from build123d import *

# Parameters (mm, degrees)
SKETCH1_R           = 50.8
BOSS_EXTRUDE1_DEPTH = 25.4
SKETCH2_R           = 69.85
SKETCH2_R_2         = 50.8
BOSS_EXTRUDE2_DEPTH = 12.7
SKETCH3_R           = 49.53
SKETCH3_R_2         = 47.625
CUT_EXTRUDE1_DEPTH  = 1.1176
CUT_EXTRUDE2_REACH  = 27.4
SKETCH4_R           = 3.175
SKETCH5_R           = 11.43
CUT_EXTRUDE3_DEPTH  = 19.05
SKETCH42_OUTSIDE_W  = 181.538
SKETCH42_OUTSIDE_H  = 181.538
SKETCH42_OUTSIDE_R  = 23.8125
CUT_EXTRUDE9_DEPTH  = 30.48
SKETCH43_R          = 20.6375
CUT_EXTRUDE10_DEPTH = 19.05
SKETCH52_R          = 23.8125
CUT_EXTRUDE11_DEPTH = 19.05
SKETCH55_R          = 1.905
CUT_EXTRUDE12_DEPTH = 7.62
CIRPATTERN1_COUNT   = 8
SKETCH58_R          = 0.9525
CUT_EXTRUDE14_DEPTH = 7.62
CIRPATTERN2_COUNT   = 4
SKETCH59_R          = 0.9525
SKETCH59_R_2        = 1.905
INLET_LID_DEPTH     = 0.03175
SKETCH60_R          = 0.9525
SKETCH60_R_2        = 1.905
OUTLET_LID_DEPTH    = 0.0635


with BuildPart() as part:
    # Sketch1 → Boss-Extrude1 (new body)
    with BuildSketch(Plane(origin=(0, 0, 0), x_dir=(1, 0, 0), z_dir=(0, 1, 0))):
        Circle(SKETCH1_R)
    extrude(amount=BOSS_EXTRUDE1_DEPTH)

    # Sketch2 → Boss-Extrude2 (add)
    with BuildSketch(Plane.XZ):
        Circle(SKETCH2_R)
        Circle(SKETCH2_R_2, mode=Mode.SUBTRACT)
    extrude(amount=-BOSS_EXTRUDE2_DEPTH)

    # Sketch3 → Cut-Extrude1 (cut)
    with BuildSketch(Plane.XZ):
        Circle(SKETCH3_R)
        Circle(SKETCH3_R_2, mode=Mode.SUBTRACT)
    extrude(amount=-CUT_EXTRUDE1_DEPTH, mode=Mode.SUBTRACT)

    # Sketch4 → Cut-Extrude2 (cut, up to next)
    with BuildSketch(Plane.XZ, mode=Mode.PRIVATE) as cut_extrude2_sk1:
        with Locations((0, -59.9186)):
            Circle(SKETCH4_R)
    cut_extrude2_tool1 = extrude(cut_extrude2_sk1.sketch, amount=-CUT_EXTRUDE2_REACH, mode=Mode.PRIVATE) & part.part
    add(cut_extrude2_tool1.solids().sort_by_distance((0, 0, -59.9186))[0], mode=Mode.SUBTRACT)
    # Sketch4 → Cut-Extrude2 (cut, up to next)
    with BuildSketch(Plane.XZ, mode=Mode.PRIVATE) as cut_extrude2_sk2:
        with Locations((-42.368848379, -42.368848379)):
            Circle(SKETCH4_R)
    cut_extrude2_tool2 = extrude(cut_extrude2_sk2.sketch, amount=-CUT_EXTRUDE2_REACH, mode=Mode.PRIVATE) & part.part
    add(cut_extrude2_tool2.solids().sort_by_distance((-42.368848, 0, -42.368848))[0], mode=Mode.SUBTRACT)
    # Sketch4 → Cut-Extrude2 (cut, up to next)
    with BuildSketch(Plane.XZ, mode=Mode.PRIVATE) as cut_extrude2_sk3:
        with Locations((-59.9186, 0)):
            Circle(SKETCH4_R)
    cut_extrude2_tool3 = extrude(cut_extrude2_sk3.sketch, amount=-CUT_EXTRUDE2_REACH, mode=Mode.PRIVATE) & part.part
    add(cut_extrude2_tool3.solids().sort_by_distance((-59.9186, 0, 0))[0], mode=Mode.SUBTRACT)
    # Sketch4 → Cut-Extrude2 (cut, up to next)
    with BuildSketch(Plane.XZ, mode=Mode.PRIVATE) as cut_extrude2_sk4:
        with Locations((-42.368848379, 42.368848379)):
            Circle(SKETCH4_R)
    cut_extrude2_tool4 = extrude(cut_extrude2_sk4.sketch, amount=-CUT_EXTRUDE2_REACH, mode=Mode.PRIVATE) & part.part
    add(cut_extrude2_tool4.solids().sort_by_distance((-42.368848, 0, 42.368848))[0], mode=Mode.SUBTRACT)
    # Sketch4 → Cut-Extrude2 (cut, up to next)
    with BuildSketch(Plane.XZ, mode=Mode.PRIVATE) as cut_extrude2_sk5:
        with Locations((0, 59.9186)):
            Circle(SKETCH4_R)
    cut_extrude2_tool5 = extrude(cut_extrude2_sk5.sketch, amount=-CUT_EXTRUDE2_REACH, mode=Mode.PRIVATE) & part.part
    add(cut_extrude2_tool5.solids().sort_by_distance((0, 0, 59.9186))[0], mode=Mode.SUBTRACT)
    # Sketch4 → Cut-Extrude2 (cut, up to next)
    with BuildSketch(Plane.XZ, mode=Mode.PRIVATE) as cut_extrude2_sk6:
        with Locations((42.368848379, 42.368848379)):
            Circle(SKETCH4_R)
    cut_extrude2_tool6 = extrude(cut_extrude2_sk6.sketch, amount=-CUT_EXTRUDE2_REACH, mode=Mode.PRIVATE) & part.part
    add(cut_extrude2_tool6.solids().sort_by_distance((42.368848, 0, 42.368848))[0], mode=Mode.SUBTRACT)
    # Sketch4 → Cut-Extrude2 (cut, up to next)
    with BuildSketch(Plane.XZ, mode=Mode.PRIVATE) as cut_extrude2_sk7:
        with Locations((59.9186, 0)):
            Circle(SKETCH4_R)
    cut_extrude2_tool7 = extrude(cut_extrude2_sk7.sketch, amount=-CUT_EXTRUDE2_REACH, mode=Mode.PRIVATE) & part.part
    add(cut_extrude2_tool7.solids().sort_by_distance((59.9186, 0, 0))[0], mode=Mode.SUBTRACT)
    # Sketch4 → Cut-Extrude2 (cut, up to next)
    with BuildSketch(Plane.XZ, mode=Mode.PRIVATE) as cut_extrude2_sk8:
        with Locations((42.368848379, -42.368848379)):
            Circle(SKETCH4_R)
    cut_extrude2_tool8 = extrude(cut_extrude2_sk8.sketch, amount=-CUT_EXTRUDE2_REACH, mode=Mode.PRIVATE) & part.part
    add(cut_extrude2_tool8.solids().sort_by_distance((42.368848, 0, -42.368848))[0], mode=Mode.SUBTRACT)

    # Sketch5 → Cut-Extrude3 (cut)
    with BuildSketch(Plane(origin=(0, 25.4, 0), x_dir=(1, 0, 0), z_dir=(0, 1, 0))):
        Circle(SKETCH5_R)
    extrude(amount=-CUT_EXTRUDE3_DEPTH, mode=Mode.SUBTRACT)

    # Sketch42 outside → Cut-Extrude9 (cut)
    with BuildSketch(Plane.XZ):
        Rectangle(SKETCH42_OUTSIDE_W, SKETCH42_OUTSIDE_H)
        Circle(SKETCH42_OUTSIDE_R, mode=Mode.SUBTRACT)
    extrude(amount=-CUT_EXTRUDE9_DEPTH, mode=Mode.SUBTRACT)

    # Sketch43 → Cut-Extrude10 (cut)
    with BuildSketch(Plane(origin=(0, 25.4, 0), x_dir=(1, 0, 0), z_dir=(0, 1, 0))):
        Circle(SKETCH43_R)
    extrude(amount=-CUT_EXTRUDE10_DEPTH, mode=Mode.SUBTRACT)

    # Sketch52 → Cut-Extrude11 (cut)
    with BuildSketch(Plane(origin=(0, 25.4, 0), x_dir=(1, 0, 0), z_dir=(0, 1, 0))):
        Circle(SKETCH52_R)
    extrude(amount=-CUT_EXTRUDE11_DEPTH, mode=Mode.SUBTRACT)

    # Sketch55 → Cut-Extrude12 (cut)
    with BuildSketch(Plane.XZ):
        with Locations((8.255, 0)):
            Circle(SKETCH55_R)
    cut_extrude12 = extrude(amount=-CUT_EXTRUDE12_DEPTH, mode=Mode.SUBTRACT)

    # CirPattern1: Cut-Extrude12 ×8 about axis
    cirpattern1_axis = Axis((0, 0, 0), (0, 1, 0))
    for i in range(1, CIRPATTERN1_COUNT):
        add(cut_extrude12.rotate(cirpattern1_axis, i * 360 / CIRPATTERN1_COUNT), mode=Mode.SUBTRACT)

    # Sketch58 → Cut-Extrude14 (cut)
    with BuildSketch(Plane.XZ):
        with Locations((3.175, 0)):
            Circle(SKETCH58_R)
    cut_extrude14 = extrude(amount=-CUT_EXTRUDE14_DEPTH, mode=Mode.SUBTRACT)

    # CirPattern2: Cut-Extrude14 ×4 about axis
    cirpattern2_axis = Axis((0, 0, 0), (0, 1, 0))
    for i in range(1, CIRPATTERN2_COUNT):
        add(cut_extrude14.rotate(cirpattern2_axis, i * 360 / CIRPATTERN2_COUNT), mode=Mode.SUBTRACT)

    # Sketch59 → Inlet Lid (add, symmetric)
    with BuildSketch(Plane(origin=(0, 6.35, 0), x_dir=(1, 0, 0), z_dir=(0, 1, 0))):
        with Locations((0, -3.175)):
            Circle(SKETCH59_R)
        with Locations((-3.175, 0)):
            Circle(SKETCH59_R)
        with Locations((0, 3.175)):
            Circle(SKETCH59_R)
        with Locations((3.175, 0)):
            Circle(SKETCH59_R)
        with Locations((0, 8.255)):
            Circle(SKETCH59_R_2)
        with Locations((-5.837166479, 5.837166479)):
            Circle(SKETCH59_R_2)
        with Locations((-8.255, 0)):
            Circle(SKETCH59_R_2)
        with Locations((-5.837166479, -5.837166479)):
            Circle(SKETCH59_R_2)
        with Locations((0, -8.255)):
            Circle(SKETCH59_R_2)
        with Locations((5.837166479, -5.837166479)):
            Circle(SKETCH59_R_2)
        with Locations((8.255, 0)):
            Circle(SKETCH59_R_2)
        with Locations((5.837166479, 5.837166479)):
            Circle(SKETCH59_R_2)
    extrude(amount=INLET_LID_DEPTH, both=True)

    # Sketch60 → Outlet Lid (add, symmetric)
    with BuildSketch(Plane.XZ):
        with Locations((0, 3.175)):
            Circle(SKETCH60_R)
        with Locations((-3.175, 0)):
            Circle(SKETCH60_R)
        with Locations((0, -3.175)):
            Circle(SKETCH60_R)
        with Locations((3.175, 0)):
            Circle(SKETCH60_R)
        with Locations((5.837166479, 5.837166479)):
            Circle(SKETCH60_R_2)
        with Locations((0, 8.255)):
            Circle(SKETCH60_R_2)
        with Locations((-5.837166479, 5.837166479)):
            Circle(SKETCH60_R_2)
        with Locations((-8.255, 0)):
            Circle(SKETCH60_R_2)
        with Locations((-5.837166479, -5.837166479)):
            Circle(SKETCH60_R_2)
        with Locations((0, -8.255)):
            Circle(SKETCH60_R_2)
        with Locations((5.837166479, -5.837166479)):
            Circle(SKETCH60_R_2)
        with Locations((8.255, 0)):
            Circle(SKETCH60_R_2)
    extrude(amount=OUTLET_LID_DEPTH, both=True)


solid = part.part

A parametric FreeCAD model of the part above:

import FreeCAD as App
import Part
import Sketcher

V = App.Vector
Q = App.Units.Quantity


def add_polygon(sketch, points):
    """Adds a closed chain of lines whose ends are joined by coincident constraints."""
    first, n = sketch.GeometryCount, len(points)
    for a, b in zip(points, points[1:] + points[:1]):
        sketch.addGeometry(Part.LineSegment(App.Vector(*a, 0), App.Vector(*b, 0)), False)
    for i in range(n):
        sketch.addConstraint(Sketcher.Constraint("Coincident", first + i, 2, first + (i + 1) % n, 1))

doc = App.newDocument("Part")
params = doc.addObject("Spreadsheet::Sheet", "Params")
for row, (alias, value) in enumerate([
    ("sketch1_diameter", "4 in"),
    ("pad1_length", "1 in"),
    ("sketch2_diameter", "4 in"),
    ("sketch2_diameter2", "5.5 in"),
    ("pad2_length", "0.5 in"),
    ("sketch3_diameter", "3.9 in"),
    ("sketch3_diameter2", "3.75 in"),
    ("pocket1_length", "0.044 in"),
    ("sketch4_diameter", "0.25 in"),
    ("sketch5_diameter", "0.25 in"),
    ("sketch6_diameter", "0.25 in"),
    ("sketch7_diameter", "0.25 in"),
    ("sketch8_diameter", "0.25 in"),
    ("sketch9_diameter", "0.25 in"),
    ("sketch10_diameter", "0.25 in"),
    ("sketch11_diameter", "0.25 in"),
    ("sketch12_diameter", "0.9 in"),
    ("pocket10_length", "0.75 in"),
    ("sketch13_diameter", "1.875 in"),
    ("pocket11_length", "1.2 in"),
    ("sketch14_diameter", "1.625 in"),
    ("pocket12_length", "0.75 in"),
    ("sketch15_diameter", "1.875 in"),
    ("pocket13_length", "0.75 in"),
    ("sketch16_diameter", "0.15 in"),
    ("pocket14_length", "0.3 in"),
    ("sketch17_diameter", "0.075 in"),
    ("pocket15_length", "0.3 in"),
    ("sketch18_diameter", "0.15 in"),
    ("sketch18_diameter2", "0.075 in"),
    ("pad3_length", "0.0025 in"),
    ("sketch19_diameter", "0.15 in"),
    ("sketch19_diameter2", "0.075 in"),
    ("pad4_length", "0.005 in"),
], start=1):
    params.set(f"A{row}", alias)
    params.set(f"B{row}", "=" + value)
    params.setAlias(f"B{row}", alias)

body = doc.addObject("PartDesign::Body", "Body")

# Sketch on XZ plane
sketch1 = doc.addObject("Sketcher::SketchObject", "Sketch")
body.addObject(sketch1)
sketch1.AttachmentSupport = (doc.XZ_Plane, [""])
sketch1.MapMode = "FlatFace"
sketch1.addGeometry(Part.Circle(V(0, 0, 0), V(0, 0, 1), 51), False)
sketch1.addConstraint([
    Sketcher.Constraint("Coincident", 0, 3, -1, 1),
    Sketcher.Constraint("Diameter", 0, Q("4 in")),
])
sketch1.setExpression("Constraints[1]", "Params.sketch1_diameter")
pad1 = doc.addObject("PartDesign::Pad", "Pad")
body.addObject(pad1)
pad1.Profile = sketch1
pad1.setExpression("Length", "Params.pad1_length")
pad1.Reversed = True

# Sketch on XZ plane
sketch2 = doc.addObject("Sketcher::SketchObject", "Sketch001")
body.addObject(sketch2)
sketch2.AttachmentSupport = (doc.XZ_Plane, [""])
sketch2.MapMode = "FlatFace"
sketch2.addGeometry([
    Part.Circle(V(0, 0, 0), V(0, 0, 1), 70),
    Part.Circle(V(0, 0, 0), V(0, 0, 1), 51),
], False)
sketch2.addConstraint([
    Sketcher.Constraint("Coincident", 0, 3, -1, 1),
    Sketcher.Constraint("Coincident", 1, 3, -1, 1),
    Sketcher.Constraint("Diameter", 1, Q("4 in")),
    Sketcher.Constraint("Diameter", 0, Q("5.5 in")),
])
sketch2.setExpression("Constraints[2]", "Params.sketch2_diameter")
sketch2.setExpression("Constraints[3]", "Params.sketch2_diameter2")
pad2 = doc.addObject("PartDesign::Pad", "Pad001")
body.addObject(pad2)
pad2.Profile = sketch2
pad2.setExpression("Length", "Params.pad2_length")
pad2.Reversed = True

# Sketch on XZ plane
sketch3 = doc.addObject("Sketcher::SketchObject", "Sketch002")
body.addObject(sketch3)
sketch3.AttachmentSupport = (doc.XZ_Plane, [""])
sketch3.MapMode = "FlatFace"
sketch3.addGeometry([
    Part.Circle(V(0, 0, 0), V(0, 0, 1), 50),
    Part.Circle(V(0, 0, 0), V(0, 0, 1), 48),
], False)
sketch3.addConstraint([
    Sketcher.Constraint("Coincident", 0, 3, -1, 1),
    Sketcher.Constraint("Coincident", 1, 3, -1, 1),
    Sketcher.Constraint("Diameter", 0, Q("3.9 in")),
    Sketcher.Constraint("Diameter", 1, Q("3.75 in")),
])
sketch3.setExpression("Constraints[2]", "Params.sketch3_diameter")
sketch3.setExpression("Constraints[3]", "Params.sketch3_diameter2")
pocket1 = doc.addObject("PartDesign::Pocket", "Pocket")
body.addObject(pocket1)
pocket1.Profile = sketch3
pocket1.setExpression("Length", "Params.pocket1_length")

# Sketch on XZ plane
sketch4 = doc.addObject("Sketcher::SketchObject", "Sketch003")
body.addObject(sketch4)
sketch4.AttachmentSupport = (doc.XZ_Plane, [""])
sketch4.MapMode = "FlatFace"
sketch4.addGeometry(Part.Circle(V(0, -59.9, 0), V(0, 0, 1), 3.2), False)
sketch4.addConstraint([
    Sketcher.Constraint("PointOnObject", 0, 3, -2),
    Sketcher.Constraint("Diameter", 0, Q("0.25 in")),
    Sketcher.Constraint("DistanceY", 0, 3, -1, 1, Q("2.359 in")),
])
sketch4.setExpression("Constraints[1]", "Params.sketch4_diameter")
pocket2 = doc.addObject("PartDesign::Pocket", "Pocket001")
body.addObject(pocket2)
pocket2.Profile = sketch4
pocket2.Type = "UpToFirst"

# Sketch on XZ plane
sketch5 = doc.addObject("Sketcher::SketchObject", "Sketch004")
body.addObject(sketch5)
sketch5.AttachmentSupport = (doc.XZ_Plane, [""])
sketch5.MapMode = "FlatFace"
sketch5.addGeometry(Part.Circle(V(-42.4, -42.4, 0), V(0, 0, 1), 3.2), False)
sketch5.addConstraint([
    Sketcher.Constraint("Diameter", 0, Q("0.25 in")),
    Sketcher.Constraint("DistanceX", 0, 3, -1, 1, Q("42.368848 mm")),
    Sketcher.Constraint("DistanceY", 0, 3, -1, 1, Q("42.368848 mm")),
])
sketch5.setExpression("Constraints[0]", "Params.sketch5_diameter")
pocket3 = doc.addObject("PartDesign::Pocket", "Pocket002")
body.addObject(pocket3)
pocket3.Profile = sketch5
pocket3.Type = "UpToFirst"

# Sketch on XZ plane
sketch6 = doc.addObject("Sketcher::SketchObject", "Sketch005")
body.addObject(sketch6)
sketch6.AttachmentSupport = (doc.XZ_Plane, [""])
sketch6.MapMode = "FlatFace"
sketch6.addGeometry(Part.Circle(V(-59.9, 0, 0), V(0, 0, 1), 3.2), False)
sketch6.addConstraint([
    Sketcher.Constraint("PointOnObject", 0, 3, -1),
    Sketcher.Constraint("Diameter", 0, Q("0.25 in")),
    Sketcher.Constraint("DistanceX", 0, 3, -1, 1, Q("2.359 in")),
])
sketch6.setExpression("Constraints[1]", "Params.sketch6_diameter")
pocket4 = doc.addObject("PartDesign::Pocket", "Pocket003")
body.addObject(pocket4)
pocket4.Profile = sketch6
pocket4.Type = "UpToFirst"

# Sketch on XZ plane
sketch7 = doc.addObject("Sketcher::SketchObject", "Sketch006")
body.addObject(sketch7)
sketch7.AttachmentSupport = (doc.XZ_Plane, [""])
sketch7.MapMode = "FlatFace"
sketch7.addGeometry(Part.Circle(V(-42.4, 42.4, 0), V(0, 0, 1), 3.2), False)
sketch7.addConstraint([
    Sketcher.Constraint("Diameter", 0, Q("0.25 in")),
    Sketcher.Constraint("DistanceX", 0, 3, -1, 1, Q("42.368848 mm")),
    Sketcher.Constraint("DistanceY", -1, 1, 0, 3, Q("42.368848 mm")),
])
sketch7.setExpression("Constraints[0]", "Params.sketch7_diameter")
pocket5 = doc.addObject("PartDesign::Pocket", "Pocket004")
body.addObject(pocket5)
pocket5.Profile = sketch7
pocket5.Type = "UpToFirst"

# Sketch on XZ plane
sketch8 = doc.addObject("Sketcher::SketchObject", "Sketch007")
body.addObject(sketch8)
sketch8.AttachmentSupport = (doc.XZ_Plane, [""])
sketch8.MapMode = "FlatFace"
sketch8.addGeometry(Part.Circle(V(0, 59.9, 0), V(0, 0, 1), 3.2), False)
sketch8.addConstraint([
    Sketcher.Constraint("PointOnObject", 0, 3, -2),
    Sketcher.Constraint("Diameter", 0, Q("0.25 in")),
    Sketcher.Constraint("DistanceY", -1, 1, 0, 3, Q("2.359 in")),
])
sketch8.setExpression("Constraints[1]", "Params.sketch8_diameter")
pocket6 = doc.addObject("PartDesign::Pocket", "Pocket005")
body.addObject(pocket6)
pocket6.Profile = sketch8
pocket6.Type = "UpToFirst"

# Sketch on XZ plane
sketch9 = doc.addObject("Sketcher::SketchObject", "Sketch008")
body.addObject(sketch9)
sketch9.AttachmentSupport = (doc.XZ_Plane, [""])
sketch9.MapMode = "FlatFace"
sketch9.addGeometry(Part.Circle(V(42.4, 42.4, 0), V(0, 0, 1), 3.2), False)
sketch9.addConstraint([
    Sketcher.Constraint("Diameter", 0, Q("0.25 in")),
    Sketcher.Constraint("DistanceX", -1, 1, 0, 3, Q("42.368848 mm")),
    Sketcher.Constraint("DistanceY", -1, 1, 0, 3, Q("42.368848 mm")),
])
sketch9.setExpression("Constraints[0]", "Params.sketch9_diameter")
pocket7 = doc.addObject("PartDesign::Pocket", "Pocket006")
body.addObject(pocket7)
pocket7.Profile = sketch9
pocket7.Type = "UpToFirst"

# Sketch on XZ plane
sketch10 = doc.addObject("Sketcher::SketchObject", "Sketch009")
body.addObject(sketch10)
sketch10.AttachmentSupport = (doc.XZ_Plane, [""])
sketch10.MapMode = "FlatFace"
sketch10.addGeometry(Part.Circle(V(59.9, 0, 0), V(0, 0, 1), 3.2), False)
sketch10.addConstraint([
    Sketcher.Constraint("PointOnObject", 0, 3, -1),
    Sketcher.Constraint("Diameter", 0, Q("0.25 in")),
    Sketcher.Constraint("DistanceX", -1, 1, 0, 3, Q("2.359 in")),
])
sketch10.setExpression("Constraints[1]", "Params.sketch10_diameter")
pocket8 = doc.addObject("PartDesign::Pocket", "Pocket007")
body.addObject(pocket8)
pocket8.Profile = sketch10
pocket8.Type = "UpToFirst"

# Sketch on XZ plane
sketch11 = doc.addObject("Sketcher::SketchObject", "Sketch010")
body.addObject(sketch11)
sketch11.AttachmentSupport = (doc.XZ_Plane, [""])
sketch11.MapMode = "FlatFace"
sketch11.addGeometry(Part.Circle(V(42.4, -42.4, 0), V(0, 0, 1), 3.2), False)
sketch11.addConstraint([
    Sketcher.Constraint("Diameter", 0, Q("0.25 in")),
    Sketcher.Constraint("DistanceX", -1, 1, 0, 3, Q("42.368848 mm")),
    Sketcher.Constraint("DistanceY", 0, 3, -1, 1, Q("42.368848 mm")),
])
sketch11.setExpression("Constraints[0]", "Params.sketch11_diameter")
pocket9 = doc.addObject("PartDesign::Pocket", "Pocket008")
body.addObject(pocket9)
pocket9.Profile = sketch11
pocket9.Type = "UpToFirst"

# Sketch on XZ plane
sketch12 = doc.addObject("Sketcher::SketchObject", "Sketch011")
body.addObject(sketch12)
sketch12.AttachmentSupport = (doc.XZ_Plane, [""])
sketch12.MapMode = "FlatFace"
sketch12.AttachmentOffset = App.Placement(V(0, 0, -1 * 25.4), App.Rotation())
sketch12.addGeometry(Part.Circle(V(0, 0, 0), V(0, 0, 1), 11), False)
sketch12.addConstraint([
    Sketcher.Constraint("Coincident", 0, 3, -1, 1),
    Sketcher.Constraint("Diameter", 0, Q("0.9 in")),
])
sketch12.setExpression("Constraints[1]", "Params.sketch12_diameter")
pocket10 = doc.addObject("PartDesign::Pocket", "Pocket009")
body.addObject(pocket10)
pocket10.Profile = sketch12
pocket10.setExpression("Length", "Params.pocket10_length")
pocket10.Reversed = True

# Sketch on XZ plane
sketch13 = doc.addObject("Sketcher::SketchObject", "Sketch012")
body.addObject(sketch13)
sketch13.AttachmentSupport = (doc.XZ_Plane, [""])
sketch13.MapMode = "FlatFace"
add_polygon(sketch13, [(-91, 91), (-91, -91), (91, -91), (91, 91)])  # lines 0-3
sketch13.addGeometry(Part.Circle(V(0, 0, 0), V(0, 0, 1), 24), False)  # 4
sketch13.addConstraint([
    Sketcher.Constraint("Vertical", 0),
    Sketcher.Constraint("Horizontal", 1),
    Sketcher.Constraint("Vertical", 2),
    Sketcher.Constraint("Horizontal", 3),
    Sketcher.Constraint("Coincident", 4, 3, -1, 1),
    Sketcher.Constraint("Symmetric", 0, 2, 2, 2, -1, 1),
    Sketcher.Constraint("Equal", 3, 0),
    Sketcher.Constraint("Diameter", 4, Q("1.875 in")),
    Sketcher.Constraint("DistanceX", 1, 1, 1, 2, Q("181.538 mm")),
])
sketch13.setExpression("Constraints[11]", "Params.sketch13_diameter")
pocket11 = doc.addObject("PartDesign::Pocket", "Pocket010")
body.addObject(pocket11)
pocket11.Profile = sketch13
pocket11.setExpression("Length", "Params.pocket11_length")

# Sketch on XZ plane
sketch14 = doc.addObject("Sketcher::SketchObject", "Sketch013")
body.addObject(sketch14)
sketch14.AttachmentSupport = (doc.XZ_Plane, [""])
sketch14.MapMode = "FlatFace"
sketch14.AttachmentOffset = App.Placement(V(0, 0, -1 * 25.4), App.Rotation())
sketch14.addGeometry(Part.Circle(V(0, 0, 0), V(0, 0, 1), 21), False)
sketch14.addConstraint([
    Sketcher.Constraint("Coincident", 0, 3, -1, 1),
    Sketcher.Constraint("Diameter", 0, Q("1.625 in")),
])
sketch14.setExpression("Constraints[1]", "Params.sketch14_diameter")
pocket12 = doc.addObject("PartDesign::Pocket", "Pocket011")
body.addObject(pocket12)
pocket12.Profile = sketch14
pocket12.setExpression("Length", "Params.pocket12_length")
pocket12.Reversed = True

# Sketch on XZ plane
sketch15 = doc.addObject("Sketcher::SketchObject", "Sketch014")
body.addObject(sketch15)
sketch15.AttachmentSupport = (doc.XZ_Plane, [""])
sketch15.MapMode = "FlatFace"
sketch15.AttachmentOffset = App.Placement(V(0, 0, -1 * 25.4), App.Rotation())
sketch15.addGeometry(Part.Circle(V(0, 0, 0), V(0, 0, 1), 24), False)
sketch15.addConstraint([
    Sketcher.Constraint("Coincident", 0, 3, -1, 1),
    Sketcher.Constraint("Diameter", 0, Q("1.875 in")),
])
sketch15.setExpression("Constraints[1]", "Params.sketch15_diameter")
pocket13 = doc.addObject("PartDesign::Pocket", "Pocket012")
body.addObject(pocket13)
pocket13.Profile = sketch15
pocket13.setExpression("Length", "Params.pocket13_length")
pocket13.Reversed = True

# Sketch on XZ plane
sketch16 = doc.addObject("Sketcher::SketchObject", "Sketch015")
body.addObject(sketch16)
sketch16.AttachmentSupport = (doc.XZ_Plane, [""])
sketch16.MapMode = "FlatFace"
sketch16.addGeometry(Part.Circle(V(8.3, 0, 0), V(0, 0, 1), 1.9), False)
sketch16.addConstraint([
    Sketcher.Constraint("PointOnObject", 0, 3, -1),
    Sketcher.Constraint("Diameter", 0, Q("0.15 in")),
    Sketcher.Constraint("DistanceX", -1, 1, 0, 3, Q("0.325 in")),
])
sketch16.setExpression("Constraints[1]", "Params.sketch16_diameter")
pocket14 = doc.addObject("PartDesign::Pocket", "Pocket013")
body.addObject(pocket14)
pocket14.Profile = sketch16
pocket14.setExpression("Length", "Params.pocket14_length")
doc.recompute()

polarpattern = doc.addObject("PartDesign::PolarPattern", "PolarPattern")
body.addObject(polarpattern)
polarpattern.Originals = [pocket14]
polarpattern.Axis = (doc.Y_Axis, [""])
polarpattern.Angle = 360
polarpattern.Occurrences = 8
body.Tip = polarpattern

# Sketch on XZ plane
sketch17 = doc.addObject("Sketcher::SketchObject", "Sketch016")
body.addObject(sketch17)
sketch17.AttachmentSupport = (doc.XZ_Plane, [""])
sketch17.MapMode = "FlatFace"
sketch17.addGeometry(Part.Circle(V(3.2, 0, 0), V(0, 0, 1), 1), False)
sketch17.addConstraint([
    Sketcher.Constraint("PointOnObject", 0, 3, -1),
    Sketcher.Constraint("Diameter", 0, Q("0.075 in")),
    Sketcher.Constraint("DistanceX", -1, 1, 0, 3, Q("0.125 in")),
])
sketch17.setExpression("Constraints[1]", "Params.sketch17_diameter")
pocket15 = doc.addObject("PartDesign::Pocket", "Pocket014")
body.addObject(pocket15)
pocket15.Profile = sketch17
pocket15.setExpression("Length", "Params.pocket15_length")
doc.recompute()

polarpattern2 = doc.addObject("PartDesign::PolarPattern", "PolarPattern001")
body.addObject(polarpattern2)
polarpattern2.Originals = [pocket15]
polarpattern2.Axis = (doc.Y_Axis, [""])
polarpattern2.Angle = 360
polarpattern2.Occurrences = 4
body.Tip = polarpattern2

# Sketch on XZ plane
sketch18 = doc.addObject("Sketcher::SketchObject", "Sketch017")
body.addObject(sketch18)
sketch18.AttachmentSupport = (doc.XZ_Plane, [""])
sketch18.MapMode = "FlatFace"
sketch18.AttachmentOffset = App.Placement(V(0, 0, -0.25 * 25.4), App.Rotation())
sketch18.addGeometry([
    Part.Circle(V(0, 3.2, 0), V(0, 0, 1), 1),  # 0
    Part.Circle(V(-3.2, 0, 0), V(0, 0, 1), 1),  # 1
    Part.Circle(V(0, -3.2, 0), V(0, 0, 1), 1),  # 2
    Part.Circle(V(3.2, 0, 0), V(0, 0, 1), 1),  # 3
    Part.Circle(V(0, -8.3, 0), V(0, 0, 1), 1.9),  # 4
    Part.Circle(V(-5.8, -5.8, 0), V(0, 0, 1), 1.9),  # 5
    Part.Circle(V(-8.3, 0, 0), V(0, 0, 1), 1.9),  # 6
    Part.Circle(V(-5.8, 5.8, 0), V(0, 0, 1), 1.9),  # 7
    Part.Circle(V(0, 8.3, 0), V(0, 0, 1), 1.9),  # 8
    Part.Circle(V(5.8, 5.8, 0), V(0, 0, 1), 1.9),  # 9
    Part.Circle(V(8.3, 0, 0), V(0, 0, 1), 1.9),  # 10
    Part.Circle(V(5.8, -5.8, 0), V(0, 0, 1), 1.9),  # 11
], False)
sketch18.addConstraint([
    Sketcher.Constraint("Equal", 0, 1),
    Sketcher.Constraint("Equal", 1, 2),
    Sketcher.Constraint("Equal", 2, 3),
    Sketcher.Constraint("Equal", 4, 5),
    Sketcher.Constraint("Equal", 5, 6),
    Sketcher.Constraint("Equal", 6, 7),
    Sketcher.Constraint("Equal", 7, 8),
    Sketcher.Constraint("Equal", 8, 9),
    Sketcher.Constraint("Equal", 9, 10),
    Sketcher.Constraint("Equal", 10, 11),
    Sketcher.Constraint("Symmetric", 0, 3, 2, 3, -1, 1),
    Sketcher.Constraint("Symmetric", 1, 3, 3, 3, -1, 1),
    Sketcher.Constraint("Symmetric", 4, 3, 8, 3, -1, 1),
    Sketcher.Constraint("Symmetric", 5, 3, 9, 3, -1, 1),
    Sketcher.Constraint("Symmetric", 6, 3, 10, 3, -1, 1),
    Sketcher.Constraint("Symmetric", 7, 3, 11, 3, -1, 1),
    Sketcher.Constraint("Symmetric", 7, 3, 9, 3, -2),
    Sketcher.Constraint("PointOnObject", 0, 3, -2),
    Sketcher.Constraint("PointOnObject", 1, 3, -1),
    Sketcher.Constraint("PointOnObject", 4, 3, -2),
    Sketcher.Constraint("PointOnObject", 6, 3, -1),
    Sketcher.Constraint("Diameter", 4, Q("0.15 in")),
    Sketcher.Constraint("Diameter", 0, Q("0.075 in")),
    Sketcher.Constraint("DistanceY", 4, 3, 2, 3, Q("0.2 in")),
    Sketcher.Constraint("DistanceX", 6, 3, 1, 3, Q("0.2 in")),
    Sketcher.Constraint("DistanceY", 2, 3, 0, 3, Q("0.25 in")),
    Sketcher.Constraint("DistanceX", 1, 3, 3, 3, Q("0.25 in")),
    Sketcher.Constraint("DistanceX", 5, 3, -1, 1, Q("5.837166 mm")),
    Sketcher.Constraint("DistanceY", 5, 3, -1, 1, Q("5.837166 mm")),
])
sketch18.setExpression("Constraints[21]", "Params.sketch18_diameter")
sketch18.setExpression("Constraints[22]", "Params.sketch18_diameter2")
pad3 = doc.addObject("PartDesign::Pad", "Pad002")
body.addObject(pad3)
pad3.Profile = sketch18
pad3.setExpression("Length", "Params.pad3_length")
pad3.Midplane = True

# Sketch on XZ plane
sketch19 = doc.addObject("Sketcher::SketchObject", "Sketch018")
body.addObject(sketch19)
sketch19.AttachmentSupport = (doc.XZ_Plane, [""])
sketch19.MapMode = "FlatFace"
sketch19.addGeometry([
    Part.Circle(V(0, 3.2, 0), V(0, 0, 1), 1),  # 0
    Part.Circle(V(-3.2, 0, 0), V(0, 0, 1), 1),  # 1
    Part.Circle(V(0, -3.2, 0), V(0, 0, 1), 1),  # 2
    Part.Circle(V(3.2, 0, 0), V(0, 0, 1), 1),  # 3
    Part.Circle(V(5.8, 5.8, 0), V(0, 0, 1), 1.9),  # 4
    Part.Circle(V(0, 8.3, 0), V(0, 0, 1), 1.9),  # 5
    Part.Circle(V(-5.8, 5.8, 0), V(0, 0, 1), 1.9),  # 6
    Part.Circle(V(-8.3, 0, 0), V(0, 0, 1), 1.9),  # 7
    Part.Circle(V(-5.8, -5.8, 0), V(0, 0, 1), 1.9),  # 8
    Part.Circle(V(0, -8.3, 0), V(0, 0, 1), 1.9),  # 9
    Part.Circle(V(5.8, -5.8, 0), V(0, 0, 1), 1.9),  # 10
    Part.Circle(V(8.3, 0, 0), V(0, 0, 1), 1.9),  # 11
], False)
sketch19.addConstraint([
    Sketcher.Constraint("Equal", 0, 1),
    Sketcher.Constraint("Equal", 1, 2),
    Sketcher.Constraint("Equal", 2, 3),
    Sketcher.Constraint("Equal", 4, 5),
    Sketcher.Constraint("Equal", 5, 6),
    Sketcher.Constraint("Equal", 6, 7),
    Sketcher.Constraint("Equal", 7, 8),
    Sketcher.Constraint("Equal", 8, 9),
    Sketcher.Constraint("Equal", 9, 10),
    Sketcher.Constraint("Equal", 10, 11),
    Sketcher.Constraint("Symmetric", 0, 3, 2, 3, -1, 1),
    Sketcher.Constraint("Symmetric", 1, 3, 3, 3, -1, 1),
    Sketcher.Constraint("Symmetric", 4, 3, 8, 3, -1, 1),
    Sketcher.Constraint("Symmetric", 5, 3, 9, 3, -1, 1),
    Sketcher.Constraint("Symmetric", 6, 3, 10, 3, -1, 1),
    Sketcher.Constraint("Symmetric", 7, 3, 11, 3, -1, 1),
    Sketcher.Constraint("Symmetric", 4, 3, 6, 3, -2),
    Sketcher.Constraint("PointOnObject", 0, 3, -2),
    Sketcher.Constraint("PointOnObject", 1, 3, -1),
    Sketcher.Constraint("PointOnObject", 5, 3, -2),
    Sketcher.Constraint("PointOnObject", 7, 3, -1),
    Sketcher.Constraint("Diameter", 4, Q("0.15 in")),
    Sketcher.Constraint("Diameter", 0, Q("0.075 in")),
    Sketcher.Constraint("DistanceY", 0, 3, 5, 3, Q("0.2 in")),
    Sketcher.Constraint("DistanceX", 7, 3, 1, 3, Q("0.2 in")),
    Sketcher.Constraint("DistanceY", 2, 3, 0, 3, Q("0.25 in")),
    Sketcher.Constraint("DistanceX", 1, 3, 3, 3, Q("0.25 in")),
    Sketcher.Constraint("DistanceX", -1, 1, 4, 3, Q("5.837166 mm")),
    Sketcher.Constraint("DistanceY", -1, 1, 4, 3, Q("5.837166 mm")),
])
sketch19.setExpression("Constraints[21]", "Params.sketch19_diameter")
sketch19.setExpression("Constraints[22]", "Params.sketch19_diameter2")
pad4 = doc.addObject("PartDesign::Pad", "Pad003")
body.addObject(pad4)
pad4.Profile = sketch19
pad4.setExpression("Length", "Params.pad4_length")
pad4.Midplane = True

doc.recompute()
